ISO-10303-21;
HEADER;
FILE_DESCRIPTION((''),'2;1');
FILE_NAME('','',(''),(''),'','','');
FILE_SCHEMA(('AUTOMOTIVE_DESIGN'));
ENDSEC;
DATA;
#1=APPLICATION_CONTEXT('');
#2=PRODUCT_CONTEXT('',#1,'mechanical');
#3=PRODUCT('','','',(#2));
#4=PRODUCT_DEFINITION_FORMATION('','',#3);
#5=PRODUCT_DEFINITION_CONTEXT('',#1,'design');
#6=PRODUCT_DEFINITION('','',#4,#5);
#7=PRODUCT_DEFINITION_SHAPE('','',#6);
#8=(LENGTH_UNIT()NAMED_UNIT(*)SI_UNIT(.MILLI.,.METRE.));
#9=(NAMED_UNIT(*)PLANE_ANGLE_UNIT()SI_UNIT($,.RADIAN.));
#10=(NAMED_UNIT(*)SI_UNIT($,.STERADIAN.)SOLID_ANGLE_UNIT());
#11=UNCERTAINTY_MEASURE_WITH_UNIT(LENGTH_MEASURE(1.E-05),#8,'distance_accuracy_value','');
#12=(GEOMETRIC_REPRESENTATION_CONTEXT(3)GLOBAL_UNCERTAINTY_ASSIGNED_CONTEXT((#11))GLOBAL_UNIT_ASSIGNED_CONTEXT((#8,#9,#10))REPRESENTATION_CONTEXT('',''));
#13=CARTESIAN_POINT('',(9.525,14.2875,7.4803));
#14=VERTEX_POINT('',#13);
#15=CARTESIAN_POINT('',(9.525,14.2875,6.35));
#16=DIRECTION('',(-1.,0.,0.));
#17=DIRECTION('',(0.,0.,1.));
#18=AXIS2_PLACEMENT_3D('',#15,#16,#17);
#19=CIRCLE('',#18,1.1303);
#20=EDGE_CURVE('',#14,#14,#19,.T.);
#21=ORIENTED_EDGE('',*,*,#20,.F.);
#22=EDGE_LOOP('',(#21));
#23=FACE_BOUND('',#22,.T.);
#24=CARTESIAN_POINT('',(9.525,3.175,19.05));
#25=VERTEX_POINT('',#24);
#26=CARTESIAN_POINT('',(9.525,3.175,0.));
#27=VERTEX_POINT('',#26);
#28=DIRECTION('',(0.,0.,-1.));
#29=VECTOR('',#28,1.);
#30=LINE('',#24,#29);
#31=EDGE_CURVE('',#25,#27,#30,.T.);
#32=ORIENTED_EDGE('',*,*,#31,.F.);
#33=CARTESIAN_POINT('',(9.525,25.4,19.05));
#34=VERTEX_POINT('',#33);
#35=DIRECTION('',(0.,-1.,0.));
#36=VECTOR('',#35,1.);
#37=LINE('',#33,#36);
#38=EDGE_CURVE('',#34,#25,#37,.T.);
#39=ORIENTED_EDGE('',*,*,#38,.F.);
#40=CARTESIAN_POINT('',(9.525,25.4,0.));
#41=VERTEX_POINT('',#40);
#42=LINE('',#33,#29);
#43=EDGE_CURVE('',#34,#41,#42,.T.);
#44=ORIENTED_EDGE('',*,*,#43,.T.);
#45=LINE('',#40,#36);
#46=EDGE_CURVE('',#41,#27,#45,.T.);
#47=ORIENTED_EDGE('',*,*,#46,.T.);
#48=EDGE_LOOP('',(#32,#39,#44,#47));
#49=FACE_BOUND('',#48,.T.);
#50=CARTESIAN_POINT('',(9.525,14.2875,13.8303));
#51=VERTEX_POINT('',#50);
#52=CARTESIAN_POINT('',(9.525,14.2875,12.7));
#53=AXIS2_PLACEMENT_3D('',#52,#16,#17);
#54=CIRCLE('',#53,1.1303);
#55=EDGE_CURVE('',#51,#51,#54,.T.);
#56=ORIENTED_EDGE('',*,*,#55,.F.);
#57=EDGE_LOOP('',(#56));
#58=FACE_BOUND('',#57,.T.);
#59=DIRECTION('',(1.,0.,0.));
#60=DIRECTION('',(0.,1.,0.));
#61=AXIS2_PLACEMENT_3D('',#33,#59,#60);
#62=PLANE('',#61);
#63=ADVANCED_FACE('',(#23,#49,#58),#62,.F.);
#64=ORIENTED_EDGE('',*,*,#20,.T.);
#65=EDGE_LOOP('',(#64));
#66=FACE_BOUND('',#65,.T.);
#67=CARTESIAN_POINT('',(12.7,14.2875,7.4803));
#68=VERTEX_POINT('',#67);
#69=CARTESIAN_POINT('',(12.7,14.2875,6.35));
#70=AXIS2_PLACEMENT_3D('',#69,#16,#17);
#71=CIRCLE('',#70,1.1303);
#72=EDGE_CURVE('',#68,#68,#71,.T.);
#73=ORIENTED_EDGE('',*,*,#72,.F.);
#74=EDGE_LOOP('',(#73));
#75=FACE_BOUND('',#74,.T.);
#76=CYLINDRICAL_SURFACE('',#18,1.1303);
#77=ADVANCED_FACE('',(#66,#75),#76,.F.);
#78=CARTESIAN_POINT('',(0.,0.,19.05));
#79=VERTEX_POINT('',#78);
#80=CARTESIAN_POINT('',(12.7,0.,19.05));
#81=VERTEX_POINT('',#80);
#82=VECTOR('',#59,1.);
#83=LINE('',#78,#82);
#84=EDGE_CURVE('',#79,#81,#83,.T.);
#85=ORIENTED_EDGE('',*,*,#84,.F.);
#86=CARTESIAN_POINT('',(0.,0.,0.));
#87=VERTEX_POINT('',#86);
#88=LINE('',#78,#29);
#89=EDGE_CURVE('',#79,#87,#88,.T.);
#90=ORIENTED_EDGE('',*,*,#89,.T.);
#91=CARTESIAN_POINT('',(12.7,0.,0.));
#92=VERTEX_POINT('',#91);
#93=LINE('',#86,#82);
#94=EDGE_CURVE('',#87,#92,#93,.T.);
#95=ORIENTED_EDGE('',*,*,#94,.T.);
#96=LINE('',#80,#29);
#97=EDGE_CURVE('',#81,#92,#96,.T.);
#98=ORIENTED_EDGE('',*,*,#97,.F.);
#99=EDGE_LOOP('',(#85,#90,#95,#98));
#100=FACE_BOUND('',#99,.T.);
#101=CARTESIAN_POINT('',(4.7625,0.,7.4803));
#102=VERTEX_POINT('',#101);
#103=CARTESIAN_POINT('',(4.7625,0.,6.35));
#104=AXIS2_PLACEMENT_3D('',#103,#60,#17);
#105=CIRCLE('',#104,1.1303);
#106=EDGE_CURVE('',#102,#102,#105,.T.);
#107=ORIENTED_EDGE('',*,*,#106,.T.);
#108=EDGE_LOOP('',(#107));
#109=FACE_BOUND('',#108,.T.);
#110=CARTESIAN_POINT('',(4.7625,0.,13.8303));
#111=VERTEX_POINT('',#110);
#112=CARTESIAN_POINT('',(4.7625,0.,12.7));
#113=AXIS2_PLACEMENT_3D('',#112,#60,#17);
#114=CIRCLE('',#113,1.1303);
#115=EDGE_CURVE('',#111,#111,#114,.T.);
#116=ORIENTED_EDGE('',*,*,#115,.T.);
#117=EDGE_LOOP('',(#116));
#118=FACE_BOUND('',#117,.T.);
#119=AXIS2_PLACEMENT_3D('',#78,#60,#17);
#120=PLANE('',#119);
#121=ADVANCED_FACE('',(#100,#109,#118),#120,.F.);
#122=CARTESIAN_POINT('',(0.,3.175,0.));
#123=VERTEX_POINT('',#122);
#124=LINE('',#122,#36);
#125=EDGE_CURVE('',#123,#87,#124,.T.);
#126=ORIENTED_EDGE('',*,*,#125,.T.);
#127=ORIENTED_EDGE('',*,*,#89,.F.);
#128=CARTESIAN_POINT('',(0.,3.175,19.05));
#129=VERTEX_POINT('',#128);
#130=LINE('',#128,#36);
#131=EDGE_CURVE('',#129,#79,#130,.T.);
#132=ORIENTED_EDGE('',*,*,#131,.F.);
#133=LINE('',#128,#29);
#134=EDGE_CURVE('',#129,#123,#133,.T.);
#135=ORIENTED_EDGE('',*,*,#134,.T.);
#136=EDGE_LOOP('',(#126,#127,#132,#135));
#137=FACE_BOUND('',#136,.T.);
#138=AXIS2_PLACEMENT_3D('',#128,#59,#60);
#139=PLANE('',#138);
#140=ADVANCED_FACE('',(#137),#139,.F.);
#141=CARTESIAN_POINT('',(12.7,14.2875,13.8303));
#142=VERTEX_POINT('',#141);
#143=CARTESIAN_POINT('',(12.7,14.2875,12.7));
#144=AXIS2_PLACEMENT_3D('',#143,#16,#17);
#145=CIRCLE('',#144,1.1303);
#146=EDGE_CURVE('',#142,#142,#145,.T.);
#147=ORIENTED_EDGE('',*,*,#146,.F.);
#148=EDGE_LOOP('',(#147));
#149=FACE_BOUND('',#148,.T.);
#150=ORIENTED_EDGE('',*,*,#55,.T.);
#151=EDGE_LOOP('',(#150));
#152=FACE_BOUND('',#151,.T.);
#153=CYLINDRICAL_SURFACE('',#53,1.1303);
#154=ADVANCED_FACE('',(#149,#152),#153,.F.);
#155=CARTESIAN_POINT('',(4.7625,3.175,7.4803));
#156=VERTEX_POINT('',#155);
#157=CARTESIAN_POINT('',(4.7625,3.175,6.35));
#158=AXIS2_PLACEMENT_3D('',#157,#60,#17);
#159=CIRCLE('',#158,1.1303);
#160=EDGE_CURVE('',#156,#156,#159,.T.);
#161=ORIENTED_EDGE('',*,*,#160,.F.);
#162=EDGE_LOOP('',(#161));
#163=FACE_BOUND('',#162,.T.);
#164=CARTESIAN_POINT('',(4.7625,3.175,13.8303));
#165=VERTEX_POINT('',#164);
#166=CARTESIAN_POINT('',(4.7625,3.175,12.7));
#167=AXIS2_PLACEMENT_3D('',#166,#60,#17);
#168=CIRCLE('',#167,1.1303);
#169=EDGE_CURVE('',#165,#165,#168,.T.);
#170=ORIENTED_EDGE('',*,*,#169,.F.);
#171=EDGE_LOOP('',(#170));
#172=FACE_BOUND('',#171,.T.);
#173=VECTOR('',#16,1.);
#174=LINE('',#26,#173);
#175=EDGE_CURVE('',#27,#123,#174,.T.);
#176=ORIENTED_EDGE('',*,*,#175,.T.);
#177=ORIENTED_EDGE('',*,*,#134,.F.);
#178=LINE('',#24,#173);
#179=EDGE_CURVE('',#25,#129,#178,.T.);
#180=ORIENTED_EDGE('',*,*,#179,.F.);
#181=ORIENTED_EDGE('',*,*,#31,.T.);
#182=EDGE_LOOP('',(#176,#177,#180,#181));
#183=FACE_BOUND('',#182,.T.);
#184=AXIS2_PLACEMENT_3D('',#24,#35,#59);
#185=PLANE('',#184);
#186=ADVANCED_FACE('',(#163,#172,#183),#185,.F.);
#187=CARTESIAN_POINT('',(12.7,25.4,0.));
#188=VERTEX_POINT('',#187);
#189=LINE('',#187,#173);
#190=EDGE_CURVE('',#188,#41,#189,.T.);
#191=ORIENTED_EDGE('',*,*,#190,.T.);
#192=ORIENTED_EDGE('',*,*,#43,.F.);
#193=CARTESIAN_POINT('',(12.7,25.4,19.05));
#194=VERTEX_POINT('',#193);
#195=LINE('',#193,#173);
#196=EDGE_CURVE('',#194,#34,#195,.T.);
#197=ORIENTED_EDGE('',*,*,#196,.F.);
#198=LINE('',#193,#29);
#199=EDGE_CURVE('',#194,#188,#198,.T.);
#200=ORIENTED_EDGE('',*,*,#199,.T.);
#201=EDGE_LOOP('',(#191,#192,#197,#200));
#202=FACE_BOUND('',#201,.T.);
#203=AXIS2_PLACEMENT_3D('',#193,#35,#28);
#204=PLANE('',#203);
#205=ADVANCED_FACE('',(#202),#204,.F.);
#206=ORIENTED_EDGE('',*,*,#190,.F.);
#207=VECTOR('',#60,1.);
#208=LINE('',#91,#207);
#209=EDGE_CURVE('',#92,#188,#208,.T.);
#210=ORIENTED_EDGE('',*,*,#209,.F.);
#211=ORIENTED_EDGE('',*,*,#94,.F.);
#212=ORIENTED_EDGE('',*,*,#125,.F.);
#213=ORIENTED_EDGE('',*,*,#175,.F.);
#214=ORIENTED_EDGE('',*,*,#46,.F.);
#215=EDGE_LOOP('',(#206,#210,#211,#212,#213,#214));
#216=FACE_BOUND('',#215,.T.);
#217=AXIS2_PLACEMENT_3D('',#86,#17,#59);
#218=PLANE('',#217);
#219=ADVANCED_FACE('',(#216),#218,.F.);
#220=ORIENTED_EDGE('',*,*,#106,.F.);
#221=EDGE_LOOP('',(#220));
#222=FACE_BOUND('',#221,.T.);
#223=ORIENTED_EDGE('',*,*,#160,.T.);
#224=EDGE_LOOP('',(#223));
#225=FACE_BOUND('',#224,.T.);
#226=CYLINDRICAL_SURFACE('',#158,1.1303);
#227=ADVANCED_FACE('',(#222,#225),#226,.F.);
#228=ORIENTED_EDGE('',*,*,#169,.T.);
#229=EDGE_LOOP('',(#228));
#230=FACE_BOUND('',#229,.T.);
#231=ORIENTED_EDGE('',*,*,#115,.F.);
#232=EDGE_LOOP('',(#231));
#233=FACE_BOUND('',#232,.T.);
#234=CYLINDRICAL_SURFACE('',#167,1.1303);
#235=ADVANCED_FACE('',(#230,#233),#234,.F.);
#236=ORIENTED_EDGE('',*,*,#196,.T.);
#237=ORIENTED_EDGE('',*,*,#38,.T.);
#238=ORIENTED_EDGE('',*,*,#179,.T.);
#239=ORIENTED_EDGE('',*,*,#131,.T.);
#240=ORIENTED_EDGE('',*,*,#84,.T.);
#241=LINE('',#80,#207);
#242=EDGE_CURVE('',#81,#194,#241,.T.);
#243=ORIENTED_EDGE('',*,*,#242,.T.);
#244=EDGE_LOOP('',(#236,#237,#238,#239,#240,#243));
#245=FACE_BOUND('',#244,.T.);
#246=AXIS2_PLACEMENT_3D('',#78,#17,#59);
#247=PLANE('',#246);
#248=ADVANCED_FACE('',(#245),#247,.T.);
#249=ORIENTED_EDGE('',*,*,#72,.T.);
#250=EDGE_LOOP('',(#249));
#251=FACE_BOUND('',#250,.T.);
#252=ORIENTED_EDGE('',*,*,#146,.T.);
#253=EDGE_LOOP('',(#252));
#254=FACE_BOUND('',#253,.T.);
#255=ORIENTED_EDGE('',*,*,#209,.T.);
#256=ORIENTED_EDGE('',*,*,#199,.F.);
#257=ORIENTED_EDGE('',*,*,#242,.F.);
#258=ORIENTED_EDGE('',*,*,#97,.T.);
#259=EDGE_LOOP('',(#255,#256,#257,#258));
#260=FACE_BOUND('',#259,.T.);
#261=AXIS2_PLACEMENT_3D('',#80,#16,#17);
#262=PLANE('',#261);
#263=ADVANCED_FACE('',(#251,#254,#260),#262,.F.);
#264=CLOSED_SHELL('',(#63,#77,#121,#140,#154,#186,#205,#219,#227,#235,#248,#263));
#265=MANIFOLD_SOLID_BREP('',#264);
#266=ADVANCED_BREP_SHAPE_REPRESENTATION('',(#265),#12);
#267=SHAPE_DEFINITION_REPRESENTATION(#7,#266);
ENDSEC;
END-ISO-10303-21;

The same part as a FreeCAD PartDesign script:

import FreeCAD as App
import Part
import Sketcher
from FreeCAD import Vector
Q = App.Units.Quantity


def add_polygon(sketch, points):
    """Adds a closed chain of lines whose ends are joined by coincident constraints."""
    first, n = sketch.GeometryCount, len(points)
    for a, b in zip(points, points[1:] + points[:1]):
        sketch.addGeometry(Part.LineSegment(App.Vector(*a, 0), App.Vector(*b, 0)), False)
    for i in range(n):
        sketch.addConstraint(Sketcher.Constraint("Coincident", first + i, 2, first + (i + 1) % n, 1))

doc = App.newDocument("Part")
body = doc.addObject("PartDesign::Body", "Body")

# Sketch on XY plane
sketch1 = body.newObject("Sketcher::SketchObject", "Sketch")
sketch1.AttachmentSupport = (doc.getObject("XY_Plane"), [""])
sketch1.MapMode = "FlatFace"
add_polygon(sketch1, [(0, 0), (12.7, 0), (12.7, 25.4), (9.5, 25.4), (9.5, 3.2), (0, 3.2)])  # lines 0-5
sketch1.addConstraint(Sketcher.Constraint("Horizontal", 0))
sketch1.addConstraint(Sketcher.Constraint("Vertical", 1))
sketch1.addConstraint(Sketcher.Constraint("Horizontal", 2))
sketch1.addConstraint(Sketcher.Constraint("Vertical", 3))
sketch1.addConstraint(Sketcher.Constraint("Horizontal", 4))
sketch1.addConstraint(Sketcher.Constraint("Vertical", 5))
sketch1.addConstraint(Sketcher.Constraint("Coincident", 5, 2, -1, 1))
sketch1.addConstraint(Sketcher.Constraint("Equal", 2, 5))
sketch1.addConstraint(Sketcher.Constraint("DistanceY", 1, 1, 1, 2, Q("1 in")))
sketch1.addConstraint(Sketcher.Constraint("DistanceX", 0, 1, 0, 2, Q("0.5 in")))
sketch1.addConstraint(Sketcher.Constraint("DistanceX", 2, 2, 2, 1, Q("0.125 in")))
pad1 = body.newObject("PartDesign::Pad", "Pad")
pad1.Profile = sketch1
pad1.Length = Q("0.75 in")

# Sketch on YZ plane
sketch2 = body.newObject("Sketcher::SketchObject", "Sketch001")
sketch2.AttachmentSupport = (doc.getObject("YZ_Plane"), [""])
sketch2.MapMode = "FlatFace"
sketch2.AttachmentOffset = App.Placement(Vector(0, 0, 0.375 * 25.4), App.Rotation())
sketch2.addGeometry(Part.Circle(Vector(14.3, 6.3, 0), Vector(0, 0, 1), 1.1), False)
sketch2.addGeometry(Part.Circle(Vector(14.3, 12.7, 0), Vector(0, 0, 1), 1.1), False)
sketch2.addConstraint(Sketcher.Constraint("Equal", 0, 1))
sketch2.addConstraint(Sketcher.Constraint("Vertical", 0, 3, 1, 3))
sketch2.addConstraint(Sketcher.Constraint("Diameter", 0, Q("0.089 in")))
sketch2.addConstraint(Sketcher.Constraint("DistanceY", -1, 1, 1, 3, Q("0.5 in")))
sketch2.addConstraint(Sketcher.Constraint("DistanceY", -1, 1, 0, 3, Q("0.25 in")))
sketch2.addConstraint(Sketcher.Constraint("DistanceX", -1, 1, 0, 3, Q("0.5625 in")))
doc.recompute()
hole = body.newObject("PartDesign::Hole", "Hole")
hole.Profile = sketch2
hole.ThreadType = "None"
hole.Diameter = Q("0.089 in")
hole.DepthType = "Dimension"
hole.Depth = Q("0.299 in")
hole.DrillPoint = "Angled"
hole.DrillPointAngle = 118
hole.Reversed = True

# Sketch on XZ plane
sketch3 = body.newObject("Sketcher::SketchObject", "Sketch002")
sketch3.AttachmentSupport = (doc.getObject("XZ_Plane"), [""])
sketch3.MapMode = "FlatFace"
sketch3.AttachmentOffset = App.Placement(Vector(0, 0, -0.125 * 25.4), App.Rotation())
sketch3.addGeometry(Part.Circle(Vector(4.8, 6.3, 0), Vector(0, 0, 1), 1.1), False)
sketch3.addGeometry(Part.Circle(Vector(4.8, 12.7, 0), Vector(0, 0, 1), 1.1), False)
sketch3.addConstraint(Sketcher.Constraint("Equal", 0, 1))
sketch3.addConstraint(Sketcher.Constraint("Vertical", 0, 3, 1, 3))
sketch3.addConstraint(Sketcher.Constraint("Diameter", 0, Q("0.089 in")))
sketch3.addConstraint(Sketcher.Constraint("DistanceY", -1, 1, 1, 3, Q("0.5 in")))
sketch3.addConstraint(Sketcher.Constraint("DistanceY", -1, 1, 0, 3, Q("0.25 in")))
sketch3.addConstraint(Sketcher.Constraint("DistanceX", -1, 1, 0, 3, Q("0.1875 in")))
doc.recompute()
hole2 = body.newObject("PartDesign::Hole", "Hole001")
hole2.Profile = sketch3
hole2.ThreadType = "None"
hole2.Diameter = Q("0.089 in")
hole2.DepthType = "Dimension"
hole2.Depth = Q("0.299 in")
hole2.DrillPoint = "Angled"
hole2.DrillPointAngle = 118
hole2.Reversed = True

doc.recompute()
